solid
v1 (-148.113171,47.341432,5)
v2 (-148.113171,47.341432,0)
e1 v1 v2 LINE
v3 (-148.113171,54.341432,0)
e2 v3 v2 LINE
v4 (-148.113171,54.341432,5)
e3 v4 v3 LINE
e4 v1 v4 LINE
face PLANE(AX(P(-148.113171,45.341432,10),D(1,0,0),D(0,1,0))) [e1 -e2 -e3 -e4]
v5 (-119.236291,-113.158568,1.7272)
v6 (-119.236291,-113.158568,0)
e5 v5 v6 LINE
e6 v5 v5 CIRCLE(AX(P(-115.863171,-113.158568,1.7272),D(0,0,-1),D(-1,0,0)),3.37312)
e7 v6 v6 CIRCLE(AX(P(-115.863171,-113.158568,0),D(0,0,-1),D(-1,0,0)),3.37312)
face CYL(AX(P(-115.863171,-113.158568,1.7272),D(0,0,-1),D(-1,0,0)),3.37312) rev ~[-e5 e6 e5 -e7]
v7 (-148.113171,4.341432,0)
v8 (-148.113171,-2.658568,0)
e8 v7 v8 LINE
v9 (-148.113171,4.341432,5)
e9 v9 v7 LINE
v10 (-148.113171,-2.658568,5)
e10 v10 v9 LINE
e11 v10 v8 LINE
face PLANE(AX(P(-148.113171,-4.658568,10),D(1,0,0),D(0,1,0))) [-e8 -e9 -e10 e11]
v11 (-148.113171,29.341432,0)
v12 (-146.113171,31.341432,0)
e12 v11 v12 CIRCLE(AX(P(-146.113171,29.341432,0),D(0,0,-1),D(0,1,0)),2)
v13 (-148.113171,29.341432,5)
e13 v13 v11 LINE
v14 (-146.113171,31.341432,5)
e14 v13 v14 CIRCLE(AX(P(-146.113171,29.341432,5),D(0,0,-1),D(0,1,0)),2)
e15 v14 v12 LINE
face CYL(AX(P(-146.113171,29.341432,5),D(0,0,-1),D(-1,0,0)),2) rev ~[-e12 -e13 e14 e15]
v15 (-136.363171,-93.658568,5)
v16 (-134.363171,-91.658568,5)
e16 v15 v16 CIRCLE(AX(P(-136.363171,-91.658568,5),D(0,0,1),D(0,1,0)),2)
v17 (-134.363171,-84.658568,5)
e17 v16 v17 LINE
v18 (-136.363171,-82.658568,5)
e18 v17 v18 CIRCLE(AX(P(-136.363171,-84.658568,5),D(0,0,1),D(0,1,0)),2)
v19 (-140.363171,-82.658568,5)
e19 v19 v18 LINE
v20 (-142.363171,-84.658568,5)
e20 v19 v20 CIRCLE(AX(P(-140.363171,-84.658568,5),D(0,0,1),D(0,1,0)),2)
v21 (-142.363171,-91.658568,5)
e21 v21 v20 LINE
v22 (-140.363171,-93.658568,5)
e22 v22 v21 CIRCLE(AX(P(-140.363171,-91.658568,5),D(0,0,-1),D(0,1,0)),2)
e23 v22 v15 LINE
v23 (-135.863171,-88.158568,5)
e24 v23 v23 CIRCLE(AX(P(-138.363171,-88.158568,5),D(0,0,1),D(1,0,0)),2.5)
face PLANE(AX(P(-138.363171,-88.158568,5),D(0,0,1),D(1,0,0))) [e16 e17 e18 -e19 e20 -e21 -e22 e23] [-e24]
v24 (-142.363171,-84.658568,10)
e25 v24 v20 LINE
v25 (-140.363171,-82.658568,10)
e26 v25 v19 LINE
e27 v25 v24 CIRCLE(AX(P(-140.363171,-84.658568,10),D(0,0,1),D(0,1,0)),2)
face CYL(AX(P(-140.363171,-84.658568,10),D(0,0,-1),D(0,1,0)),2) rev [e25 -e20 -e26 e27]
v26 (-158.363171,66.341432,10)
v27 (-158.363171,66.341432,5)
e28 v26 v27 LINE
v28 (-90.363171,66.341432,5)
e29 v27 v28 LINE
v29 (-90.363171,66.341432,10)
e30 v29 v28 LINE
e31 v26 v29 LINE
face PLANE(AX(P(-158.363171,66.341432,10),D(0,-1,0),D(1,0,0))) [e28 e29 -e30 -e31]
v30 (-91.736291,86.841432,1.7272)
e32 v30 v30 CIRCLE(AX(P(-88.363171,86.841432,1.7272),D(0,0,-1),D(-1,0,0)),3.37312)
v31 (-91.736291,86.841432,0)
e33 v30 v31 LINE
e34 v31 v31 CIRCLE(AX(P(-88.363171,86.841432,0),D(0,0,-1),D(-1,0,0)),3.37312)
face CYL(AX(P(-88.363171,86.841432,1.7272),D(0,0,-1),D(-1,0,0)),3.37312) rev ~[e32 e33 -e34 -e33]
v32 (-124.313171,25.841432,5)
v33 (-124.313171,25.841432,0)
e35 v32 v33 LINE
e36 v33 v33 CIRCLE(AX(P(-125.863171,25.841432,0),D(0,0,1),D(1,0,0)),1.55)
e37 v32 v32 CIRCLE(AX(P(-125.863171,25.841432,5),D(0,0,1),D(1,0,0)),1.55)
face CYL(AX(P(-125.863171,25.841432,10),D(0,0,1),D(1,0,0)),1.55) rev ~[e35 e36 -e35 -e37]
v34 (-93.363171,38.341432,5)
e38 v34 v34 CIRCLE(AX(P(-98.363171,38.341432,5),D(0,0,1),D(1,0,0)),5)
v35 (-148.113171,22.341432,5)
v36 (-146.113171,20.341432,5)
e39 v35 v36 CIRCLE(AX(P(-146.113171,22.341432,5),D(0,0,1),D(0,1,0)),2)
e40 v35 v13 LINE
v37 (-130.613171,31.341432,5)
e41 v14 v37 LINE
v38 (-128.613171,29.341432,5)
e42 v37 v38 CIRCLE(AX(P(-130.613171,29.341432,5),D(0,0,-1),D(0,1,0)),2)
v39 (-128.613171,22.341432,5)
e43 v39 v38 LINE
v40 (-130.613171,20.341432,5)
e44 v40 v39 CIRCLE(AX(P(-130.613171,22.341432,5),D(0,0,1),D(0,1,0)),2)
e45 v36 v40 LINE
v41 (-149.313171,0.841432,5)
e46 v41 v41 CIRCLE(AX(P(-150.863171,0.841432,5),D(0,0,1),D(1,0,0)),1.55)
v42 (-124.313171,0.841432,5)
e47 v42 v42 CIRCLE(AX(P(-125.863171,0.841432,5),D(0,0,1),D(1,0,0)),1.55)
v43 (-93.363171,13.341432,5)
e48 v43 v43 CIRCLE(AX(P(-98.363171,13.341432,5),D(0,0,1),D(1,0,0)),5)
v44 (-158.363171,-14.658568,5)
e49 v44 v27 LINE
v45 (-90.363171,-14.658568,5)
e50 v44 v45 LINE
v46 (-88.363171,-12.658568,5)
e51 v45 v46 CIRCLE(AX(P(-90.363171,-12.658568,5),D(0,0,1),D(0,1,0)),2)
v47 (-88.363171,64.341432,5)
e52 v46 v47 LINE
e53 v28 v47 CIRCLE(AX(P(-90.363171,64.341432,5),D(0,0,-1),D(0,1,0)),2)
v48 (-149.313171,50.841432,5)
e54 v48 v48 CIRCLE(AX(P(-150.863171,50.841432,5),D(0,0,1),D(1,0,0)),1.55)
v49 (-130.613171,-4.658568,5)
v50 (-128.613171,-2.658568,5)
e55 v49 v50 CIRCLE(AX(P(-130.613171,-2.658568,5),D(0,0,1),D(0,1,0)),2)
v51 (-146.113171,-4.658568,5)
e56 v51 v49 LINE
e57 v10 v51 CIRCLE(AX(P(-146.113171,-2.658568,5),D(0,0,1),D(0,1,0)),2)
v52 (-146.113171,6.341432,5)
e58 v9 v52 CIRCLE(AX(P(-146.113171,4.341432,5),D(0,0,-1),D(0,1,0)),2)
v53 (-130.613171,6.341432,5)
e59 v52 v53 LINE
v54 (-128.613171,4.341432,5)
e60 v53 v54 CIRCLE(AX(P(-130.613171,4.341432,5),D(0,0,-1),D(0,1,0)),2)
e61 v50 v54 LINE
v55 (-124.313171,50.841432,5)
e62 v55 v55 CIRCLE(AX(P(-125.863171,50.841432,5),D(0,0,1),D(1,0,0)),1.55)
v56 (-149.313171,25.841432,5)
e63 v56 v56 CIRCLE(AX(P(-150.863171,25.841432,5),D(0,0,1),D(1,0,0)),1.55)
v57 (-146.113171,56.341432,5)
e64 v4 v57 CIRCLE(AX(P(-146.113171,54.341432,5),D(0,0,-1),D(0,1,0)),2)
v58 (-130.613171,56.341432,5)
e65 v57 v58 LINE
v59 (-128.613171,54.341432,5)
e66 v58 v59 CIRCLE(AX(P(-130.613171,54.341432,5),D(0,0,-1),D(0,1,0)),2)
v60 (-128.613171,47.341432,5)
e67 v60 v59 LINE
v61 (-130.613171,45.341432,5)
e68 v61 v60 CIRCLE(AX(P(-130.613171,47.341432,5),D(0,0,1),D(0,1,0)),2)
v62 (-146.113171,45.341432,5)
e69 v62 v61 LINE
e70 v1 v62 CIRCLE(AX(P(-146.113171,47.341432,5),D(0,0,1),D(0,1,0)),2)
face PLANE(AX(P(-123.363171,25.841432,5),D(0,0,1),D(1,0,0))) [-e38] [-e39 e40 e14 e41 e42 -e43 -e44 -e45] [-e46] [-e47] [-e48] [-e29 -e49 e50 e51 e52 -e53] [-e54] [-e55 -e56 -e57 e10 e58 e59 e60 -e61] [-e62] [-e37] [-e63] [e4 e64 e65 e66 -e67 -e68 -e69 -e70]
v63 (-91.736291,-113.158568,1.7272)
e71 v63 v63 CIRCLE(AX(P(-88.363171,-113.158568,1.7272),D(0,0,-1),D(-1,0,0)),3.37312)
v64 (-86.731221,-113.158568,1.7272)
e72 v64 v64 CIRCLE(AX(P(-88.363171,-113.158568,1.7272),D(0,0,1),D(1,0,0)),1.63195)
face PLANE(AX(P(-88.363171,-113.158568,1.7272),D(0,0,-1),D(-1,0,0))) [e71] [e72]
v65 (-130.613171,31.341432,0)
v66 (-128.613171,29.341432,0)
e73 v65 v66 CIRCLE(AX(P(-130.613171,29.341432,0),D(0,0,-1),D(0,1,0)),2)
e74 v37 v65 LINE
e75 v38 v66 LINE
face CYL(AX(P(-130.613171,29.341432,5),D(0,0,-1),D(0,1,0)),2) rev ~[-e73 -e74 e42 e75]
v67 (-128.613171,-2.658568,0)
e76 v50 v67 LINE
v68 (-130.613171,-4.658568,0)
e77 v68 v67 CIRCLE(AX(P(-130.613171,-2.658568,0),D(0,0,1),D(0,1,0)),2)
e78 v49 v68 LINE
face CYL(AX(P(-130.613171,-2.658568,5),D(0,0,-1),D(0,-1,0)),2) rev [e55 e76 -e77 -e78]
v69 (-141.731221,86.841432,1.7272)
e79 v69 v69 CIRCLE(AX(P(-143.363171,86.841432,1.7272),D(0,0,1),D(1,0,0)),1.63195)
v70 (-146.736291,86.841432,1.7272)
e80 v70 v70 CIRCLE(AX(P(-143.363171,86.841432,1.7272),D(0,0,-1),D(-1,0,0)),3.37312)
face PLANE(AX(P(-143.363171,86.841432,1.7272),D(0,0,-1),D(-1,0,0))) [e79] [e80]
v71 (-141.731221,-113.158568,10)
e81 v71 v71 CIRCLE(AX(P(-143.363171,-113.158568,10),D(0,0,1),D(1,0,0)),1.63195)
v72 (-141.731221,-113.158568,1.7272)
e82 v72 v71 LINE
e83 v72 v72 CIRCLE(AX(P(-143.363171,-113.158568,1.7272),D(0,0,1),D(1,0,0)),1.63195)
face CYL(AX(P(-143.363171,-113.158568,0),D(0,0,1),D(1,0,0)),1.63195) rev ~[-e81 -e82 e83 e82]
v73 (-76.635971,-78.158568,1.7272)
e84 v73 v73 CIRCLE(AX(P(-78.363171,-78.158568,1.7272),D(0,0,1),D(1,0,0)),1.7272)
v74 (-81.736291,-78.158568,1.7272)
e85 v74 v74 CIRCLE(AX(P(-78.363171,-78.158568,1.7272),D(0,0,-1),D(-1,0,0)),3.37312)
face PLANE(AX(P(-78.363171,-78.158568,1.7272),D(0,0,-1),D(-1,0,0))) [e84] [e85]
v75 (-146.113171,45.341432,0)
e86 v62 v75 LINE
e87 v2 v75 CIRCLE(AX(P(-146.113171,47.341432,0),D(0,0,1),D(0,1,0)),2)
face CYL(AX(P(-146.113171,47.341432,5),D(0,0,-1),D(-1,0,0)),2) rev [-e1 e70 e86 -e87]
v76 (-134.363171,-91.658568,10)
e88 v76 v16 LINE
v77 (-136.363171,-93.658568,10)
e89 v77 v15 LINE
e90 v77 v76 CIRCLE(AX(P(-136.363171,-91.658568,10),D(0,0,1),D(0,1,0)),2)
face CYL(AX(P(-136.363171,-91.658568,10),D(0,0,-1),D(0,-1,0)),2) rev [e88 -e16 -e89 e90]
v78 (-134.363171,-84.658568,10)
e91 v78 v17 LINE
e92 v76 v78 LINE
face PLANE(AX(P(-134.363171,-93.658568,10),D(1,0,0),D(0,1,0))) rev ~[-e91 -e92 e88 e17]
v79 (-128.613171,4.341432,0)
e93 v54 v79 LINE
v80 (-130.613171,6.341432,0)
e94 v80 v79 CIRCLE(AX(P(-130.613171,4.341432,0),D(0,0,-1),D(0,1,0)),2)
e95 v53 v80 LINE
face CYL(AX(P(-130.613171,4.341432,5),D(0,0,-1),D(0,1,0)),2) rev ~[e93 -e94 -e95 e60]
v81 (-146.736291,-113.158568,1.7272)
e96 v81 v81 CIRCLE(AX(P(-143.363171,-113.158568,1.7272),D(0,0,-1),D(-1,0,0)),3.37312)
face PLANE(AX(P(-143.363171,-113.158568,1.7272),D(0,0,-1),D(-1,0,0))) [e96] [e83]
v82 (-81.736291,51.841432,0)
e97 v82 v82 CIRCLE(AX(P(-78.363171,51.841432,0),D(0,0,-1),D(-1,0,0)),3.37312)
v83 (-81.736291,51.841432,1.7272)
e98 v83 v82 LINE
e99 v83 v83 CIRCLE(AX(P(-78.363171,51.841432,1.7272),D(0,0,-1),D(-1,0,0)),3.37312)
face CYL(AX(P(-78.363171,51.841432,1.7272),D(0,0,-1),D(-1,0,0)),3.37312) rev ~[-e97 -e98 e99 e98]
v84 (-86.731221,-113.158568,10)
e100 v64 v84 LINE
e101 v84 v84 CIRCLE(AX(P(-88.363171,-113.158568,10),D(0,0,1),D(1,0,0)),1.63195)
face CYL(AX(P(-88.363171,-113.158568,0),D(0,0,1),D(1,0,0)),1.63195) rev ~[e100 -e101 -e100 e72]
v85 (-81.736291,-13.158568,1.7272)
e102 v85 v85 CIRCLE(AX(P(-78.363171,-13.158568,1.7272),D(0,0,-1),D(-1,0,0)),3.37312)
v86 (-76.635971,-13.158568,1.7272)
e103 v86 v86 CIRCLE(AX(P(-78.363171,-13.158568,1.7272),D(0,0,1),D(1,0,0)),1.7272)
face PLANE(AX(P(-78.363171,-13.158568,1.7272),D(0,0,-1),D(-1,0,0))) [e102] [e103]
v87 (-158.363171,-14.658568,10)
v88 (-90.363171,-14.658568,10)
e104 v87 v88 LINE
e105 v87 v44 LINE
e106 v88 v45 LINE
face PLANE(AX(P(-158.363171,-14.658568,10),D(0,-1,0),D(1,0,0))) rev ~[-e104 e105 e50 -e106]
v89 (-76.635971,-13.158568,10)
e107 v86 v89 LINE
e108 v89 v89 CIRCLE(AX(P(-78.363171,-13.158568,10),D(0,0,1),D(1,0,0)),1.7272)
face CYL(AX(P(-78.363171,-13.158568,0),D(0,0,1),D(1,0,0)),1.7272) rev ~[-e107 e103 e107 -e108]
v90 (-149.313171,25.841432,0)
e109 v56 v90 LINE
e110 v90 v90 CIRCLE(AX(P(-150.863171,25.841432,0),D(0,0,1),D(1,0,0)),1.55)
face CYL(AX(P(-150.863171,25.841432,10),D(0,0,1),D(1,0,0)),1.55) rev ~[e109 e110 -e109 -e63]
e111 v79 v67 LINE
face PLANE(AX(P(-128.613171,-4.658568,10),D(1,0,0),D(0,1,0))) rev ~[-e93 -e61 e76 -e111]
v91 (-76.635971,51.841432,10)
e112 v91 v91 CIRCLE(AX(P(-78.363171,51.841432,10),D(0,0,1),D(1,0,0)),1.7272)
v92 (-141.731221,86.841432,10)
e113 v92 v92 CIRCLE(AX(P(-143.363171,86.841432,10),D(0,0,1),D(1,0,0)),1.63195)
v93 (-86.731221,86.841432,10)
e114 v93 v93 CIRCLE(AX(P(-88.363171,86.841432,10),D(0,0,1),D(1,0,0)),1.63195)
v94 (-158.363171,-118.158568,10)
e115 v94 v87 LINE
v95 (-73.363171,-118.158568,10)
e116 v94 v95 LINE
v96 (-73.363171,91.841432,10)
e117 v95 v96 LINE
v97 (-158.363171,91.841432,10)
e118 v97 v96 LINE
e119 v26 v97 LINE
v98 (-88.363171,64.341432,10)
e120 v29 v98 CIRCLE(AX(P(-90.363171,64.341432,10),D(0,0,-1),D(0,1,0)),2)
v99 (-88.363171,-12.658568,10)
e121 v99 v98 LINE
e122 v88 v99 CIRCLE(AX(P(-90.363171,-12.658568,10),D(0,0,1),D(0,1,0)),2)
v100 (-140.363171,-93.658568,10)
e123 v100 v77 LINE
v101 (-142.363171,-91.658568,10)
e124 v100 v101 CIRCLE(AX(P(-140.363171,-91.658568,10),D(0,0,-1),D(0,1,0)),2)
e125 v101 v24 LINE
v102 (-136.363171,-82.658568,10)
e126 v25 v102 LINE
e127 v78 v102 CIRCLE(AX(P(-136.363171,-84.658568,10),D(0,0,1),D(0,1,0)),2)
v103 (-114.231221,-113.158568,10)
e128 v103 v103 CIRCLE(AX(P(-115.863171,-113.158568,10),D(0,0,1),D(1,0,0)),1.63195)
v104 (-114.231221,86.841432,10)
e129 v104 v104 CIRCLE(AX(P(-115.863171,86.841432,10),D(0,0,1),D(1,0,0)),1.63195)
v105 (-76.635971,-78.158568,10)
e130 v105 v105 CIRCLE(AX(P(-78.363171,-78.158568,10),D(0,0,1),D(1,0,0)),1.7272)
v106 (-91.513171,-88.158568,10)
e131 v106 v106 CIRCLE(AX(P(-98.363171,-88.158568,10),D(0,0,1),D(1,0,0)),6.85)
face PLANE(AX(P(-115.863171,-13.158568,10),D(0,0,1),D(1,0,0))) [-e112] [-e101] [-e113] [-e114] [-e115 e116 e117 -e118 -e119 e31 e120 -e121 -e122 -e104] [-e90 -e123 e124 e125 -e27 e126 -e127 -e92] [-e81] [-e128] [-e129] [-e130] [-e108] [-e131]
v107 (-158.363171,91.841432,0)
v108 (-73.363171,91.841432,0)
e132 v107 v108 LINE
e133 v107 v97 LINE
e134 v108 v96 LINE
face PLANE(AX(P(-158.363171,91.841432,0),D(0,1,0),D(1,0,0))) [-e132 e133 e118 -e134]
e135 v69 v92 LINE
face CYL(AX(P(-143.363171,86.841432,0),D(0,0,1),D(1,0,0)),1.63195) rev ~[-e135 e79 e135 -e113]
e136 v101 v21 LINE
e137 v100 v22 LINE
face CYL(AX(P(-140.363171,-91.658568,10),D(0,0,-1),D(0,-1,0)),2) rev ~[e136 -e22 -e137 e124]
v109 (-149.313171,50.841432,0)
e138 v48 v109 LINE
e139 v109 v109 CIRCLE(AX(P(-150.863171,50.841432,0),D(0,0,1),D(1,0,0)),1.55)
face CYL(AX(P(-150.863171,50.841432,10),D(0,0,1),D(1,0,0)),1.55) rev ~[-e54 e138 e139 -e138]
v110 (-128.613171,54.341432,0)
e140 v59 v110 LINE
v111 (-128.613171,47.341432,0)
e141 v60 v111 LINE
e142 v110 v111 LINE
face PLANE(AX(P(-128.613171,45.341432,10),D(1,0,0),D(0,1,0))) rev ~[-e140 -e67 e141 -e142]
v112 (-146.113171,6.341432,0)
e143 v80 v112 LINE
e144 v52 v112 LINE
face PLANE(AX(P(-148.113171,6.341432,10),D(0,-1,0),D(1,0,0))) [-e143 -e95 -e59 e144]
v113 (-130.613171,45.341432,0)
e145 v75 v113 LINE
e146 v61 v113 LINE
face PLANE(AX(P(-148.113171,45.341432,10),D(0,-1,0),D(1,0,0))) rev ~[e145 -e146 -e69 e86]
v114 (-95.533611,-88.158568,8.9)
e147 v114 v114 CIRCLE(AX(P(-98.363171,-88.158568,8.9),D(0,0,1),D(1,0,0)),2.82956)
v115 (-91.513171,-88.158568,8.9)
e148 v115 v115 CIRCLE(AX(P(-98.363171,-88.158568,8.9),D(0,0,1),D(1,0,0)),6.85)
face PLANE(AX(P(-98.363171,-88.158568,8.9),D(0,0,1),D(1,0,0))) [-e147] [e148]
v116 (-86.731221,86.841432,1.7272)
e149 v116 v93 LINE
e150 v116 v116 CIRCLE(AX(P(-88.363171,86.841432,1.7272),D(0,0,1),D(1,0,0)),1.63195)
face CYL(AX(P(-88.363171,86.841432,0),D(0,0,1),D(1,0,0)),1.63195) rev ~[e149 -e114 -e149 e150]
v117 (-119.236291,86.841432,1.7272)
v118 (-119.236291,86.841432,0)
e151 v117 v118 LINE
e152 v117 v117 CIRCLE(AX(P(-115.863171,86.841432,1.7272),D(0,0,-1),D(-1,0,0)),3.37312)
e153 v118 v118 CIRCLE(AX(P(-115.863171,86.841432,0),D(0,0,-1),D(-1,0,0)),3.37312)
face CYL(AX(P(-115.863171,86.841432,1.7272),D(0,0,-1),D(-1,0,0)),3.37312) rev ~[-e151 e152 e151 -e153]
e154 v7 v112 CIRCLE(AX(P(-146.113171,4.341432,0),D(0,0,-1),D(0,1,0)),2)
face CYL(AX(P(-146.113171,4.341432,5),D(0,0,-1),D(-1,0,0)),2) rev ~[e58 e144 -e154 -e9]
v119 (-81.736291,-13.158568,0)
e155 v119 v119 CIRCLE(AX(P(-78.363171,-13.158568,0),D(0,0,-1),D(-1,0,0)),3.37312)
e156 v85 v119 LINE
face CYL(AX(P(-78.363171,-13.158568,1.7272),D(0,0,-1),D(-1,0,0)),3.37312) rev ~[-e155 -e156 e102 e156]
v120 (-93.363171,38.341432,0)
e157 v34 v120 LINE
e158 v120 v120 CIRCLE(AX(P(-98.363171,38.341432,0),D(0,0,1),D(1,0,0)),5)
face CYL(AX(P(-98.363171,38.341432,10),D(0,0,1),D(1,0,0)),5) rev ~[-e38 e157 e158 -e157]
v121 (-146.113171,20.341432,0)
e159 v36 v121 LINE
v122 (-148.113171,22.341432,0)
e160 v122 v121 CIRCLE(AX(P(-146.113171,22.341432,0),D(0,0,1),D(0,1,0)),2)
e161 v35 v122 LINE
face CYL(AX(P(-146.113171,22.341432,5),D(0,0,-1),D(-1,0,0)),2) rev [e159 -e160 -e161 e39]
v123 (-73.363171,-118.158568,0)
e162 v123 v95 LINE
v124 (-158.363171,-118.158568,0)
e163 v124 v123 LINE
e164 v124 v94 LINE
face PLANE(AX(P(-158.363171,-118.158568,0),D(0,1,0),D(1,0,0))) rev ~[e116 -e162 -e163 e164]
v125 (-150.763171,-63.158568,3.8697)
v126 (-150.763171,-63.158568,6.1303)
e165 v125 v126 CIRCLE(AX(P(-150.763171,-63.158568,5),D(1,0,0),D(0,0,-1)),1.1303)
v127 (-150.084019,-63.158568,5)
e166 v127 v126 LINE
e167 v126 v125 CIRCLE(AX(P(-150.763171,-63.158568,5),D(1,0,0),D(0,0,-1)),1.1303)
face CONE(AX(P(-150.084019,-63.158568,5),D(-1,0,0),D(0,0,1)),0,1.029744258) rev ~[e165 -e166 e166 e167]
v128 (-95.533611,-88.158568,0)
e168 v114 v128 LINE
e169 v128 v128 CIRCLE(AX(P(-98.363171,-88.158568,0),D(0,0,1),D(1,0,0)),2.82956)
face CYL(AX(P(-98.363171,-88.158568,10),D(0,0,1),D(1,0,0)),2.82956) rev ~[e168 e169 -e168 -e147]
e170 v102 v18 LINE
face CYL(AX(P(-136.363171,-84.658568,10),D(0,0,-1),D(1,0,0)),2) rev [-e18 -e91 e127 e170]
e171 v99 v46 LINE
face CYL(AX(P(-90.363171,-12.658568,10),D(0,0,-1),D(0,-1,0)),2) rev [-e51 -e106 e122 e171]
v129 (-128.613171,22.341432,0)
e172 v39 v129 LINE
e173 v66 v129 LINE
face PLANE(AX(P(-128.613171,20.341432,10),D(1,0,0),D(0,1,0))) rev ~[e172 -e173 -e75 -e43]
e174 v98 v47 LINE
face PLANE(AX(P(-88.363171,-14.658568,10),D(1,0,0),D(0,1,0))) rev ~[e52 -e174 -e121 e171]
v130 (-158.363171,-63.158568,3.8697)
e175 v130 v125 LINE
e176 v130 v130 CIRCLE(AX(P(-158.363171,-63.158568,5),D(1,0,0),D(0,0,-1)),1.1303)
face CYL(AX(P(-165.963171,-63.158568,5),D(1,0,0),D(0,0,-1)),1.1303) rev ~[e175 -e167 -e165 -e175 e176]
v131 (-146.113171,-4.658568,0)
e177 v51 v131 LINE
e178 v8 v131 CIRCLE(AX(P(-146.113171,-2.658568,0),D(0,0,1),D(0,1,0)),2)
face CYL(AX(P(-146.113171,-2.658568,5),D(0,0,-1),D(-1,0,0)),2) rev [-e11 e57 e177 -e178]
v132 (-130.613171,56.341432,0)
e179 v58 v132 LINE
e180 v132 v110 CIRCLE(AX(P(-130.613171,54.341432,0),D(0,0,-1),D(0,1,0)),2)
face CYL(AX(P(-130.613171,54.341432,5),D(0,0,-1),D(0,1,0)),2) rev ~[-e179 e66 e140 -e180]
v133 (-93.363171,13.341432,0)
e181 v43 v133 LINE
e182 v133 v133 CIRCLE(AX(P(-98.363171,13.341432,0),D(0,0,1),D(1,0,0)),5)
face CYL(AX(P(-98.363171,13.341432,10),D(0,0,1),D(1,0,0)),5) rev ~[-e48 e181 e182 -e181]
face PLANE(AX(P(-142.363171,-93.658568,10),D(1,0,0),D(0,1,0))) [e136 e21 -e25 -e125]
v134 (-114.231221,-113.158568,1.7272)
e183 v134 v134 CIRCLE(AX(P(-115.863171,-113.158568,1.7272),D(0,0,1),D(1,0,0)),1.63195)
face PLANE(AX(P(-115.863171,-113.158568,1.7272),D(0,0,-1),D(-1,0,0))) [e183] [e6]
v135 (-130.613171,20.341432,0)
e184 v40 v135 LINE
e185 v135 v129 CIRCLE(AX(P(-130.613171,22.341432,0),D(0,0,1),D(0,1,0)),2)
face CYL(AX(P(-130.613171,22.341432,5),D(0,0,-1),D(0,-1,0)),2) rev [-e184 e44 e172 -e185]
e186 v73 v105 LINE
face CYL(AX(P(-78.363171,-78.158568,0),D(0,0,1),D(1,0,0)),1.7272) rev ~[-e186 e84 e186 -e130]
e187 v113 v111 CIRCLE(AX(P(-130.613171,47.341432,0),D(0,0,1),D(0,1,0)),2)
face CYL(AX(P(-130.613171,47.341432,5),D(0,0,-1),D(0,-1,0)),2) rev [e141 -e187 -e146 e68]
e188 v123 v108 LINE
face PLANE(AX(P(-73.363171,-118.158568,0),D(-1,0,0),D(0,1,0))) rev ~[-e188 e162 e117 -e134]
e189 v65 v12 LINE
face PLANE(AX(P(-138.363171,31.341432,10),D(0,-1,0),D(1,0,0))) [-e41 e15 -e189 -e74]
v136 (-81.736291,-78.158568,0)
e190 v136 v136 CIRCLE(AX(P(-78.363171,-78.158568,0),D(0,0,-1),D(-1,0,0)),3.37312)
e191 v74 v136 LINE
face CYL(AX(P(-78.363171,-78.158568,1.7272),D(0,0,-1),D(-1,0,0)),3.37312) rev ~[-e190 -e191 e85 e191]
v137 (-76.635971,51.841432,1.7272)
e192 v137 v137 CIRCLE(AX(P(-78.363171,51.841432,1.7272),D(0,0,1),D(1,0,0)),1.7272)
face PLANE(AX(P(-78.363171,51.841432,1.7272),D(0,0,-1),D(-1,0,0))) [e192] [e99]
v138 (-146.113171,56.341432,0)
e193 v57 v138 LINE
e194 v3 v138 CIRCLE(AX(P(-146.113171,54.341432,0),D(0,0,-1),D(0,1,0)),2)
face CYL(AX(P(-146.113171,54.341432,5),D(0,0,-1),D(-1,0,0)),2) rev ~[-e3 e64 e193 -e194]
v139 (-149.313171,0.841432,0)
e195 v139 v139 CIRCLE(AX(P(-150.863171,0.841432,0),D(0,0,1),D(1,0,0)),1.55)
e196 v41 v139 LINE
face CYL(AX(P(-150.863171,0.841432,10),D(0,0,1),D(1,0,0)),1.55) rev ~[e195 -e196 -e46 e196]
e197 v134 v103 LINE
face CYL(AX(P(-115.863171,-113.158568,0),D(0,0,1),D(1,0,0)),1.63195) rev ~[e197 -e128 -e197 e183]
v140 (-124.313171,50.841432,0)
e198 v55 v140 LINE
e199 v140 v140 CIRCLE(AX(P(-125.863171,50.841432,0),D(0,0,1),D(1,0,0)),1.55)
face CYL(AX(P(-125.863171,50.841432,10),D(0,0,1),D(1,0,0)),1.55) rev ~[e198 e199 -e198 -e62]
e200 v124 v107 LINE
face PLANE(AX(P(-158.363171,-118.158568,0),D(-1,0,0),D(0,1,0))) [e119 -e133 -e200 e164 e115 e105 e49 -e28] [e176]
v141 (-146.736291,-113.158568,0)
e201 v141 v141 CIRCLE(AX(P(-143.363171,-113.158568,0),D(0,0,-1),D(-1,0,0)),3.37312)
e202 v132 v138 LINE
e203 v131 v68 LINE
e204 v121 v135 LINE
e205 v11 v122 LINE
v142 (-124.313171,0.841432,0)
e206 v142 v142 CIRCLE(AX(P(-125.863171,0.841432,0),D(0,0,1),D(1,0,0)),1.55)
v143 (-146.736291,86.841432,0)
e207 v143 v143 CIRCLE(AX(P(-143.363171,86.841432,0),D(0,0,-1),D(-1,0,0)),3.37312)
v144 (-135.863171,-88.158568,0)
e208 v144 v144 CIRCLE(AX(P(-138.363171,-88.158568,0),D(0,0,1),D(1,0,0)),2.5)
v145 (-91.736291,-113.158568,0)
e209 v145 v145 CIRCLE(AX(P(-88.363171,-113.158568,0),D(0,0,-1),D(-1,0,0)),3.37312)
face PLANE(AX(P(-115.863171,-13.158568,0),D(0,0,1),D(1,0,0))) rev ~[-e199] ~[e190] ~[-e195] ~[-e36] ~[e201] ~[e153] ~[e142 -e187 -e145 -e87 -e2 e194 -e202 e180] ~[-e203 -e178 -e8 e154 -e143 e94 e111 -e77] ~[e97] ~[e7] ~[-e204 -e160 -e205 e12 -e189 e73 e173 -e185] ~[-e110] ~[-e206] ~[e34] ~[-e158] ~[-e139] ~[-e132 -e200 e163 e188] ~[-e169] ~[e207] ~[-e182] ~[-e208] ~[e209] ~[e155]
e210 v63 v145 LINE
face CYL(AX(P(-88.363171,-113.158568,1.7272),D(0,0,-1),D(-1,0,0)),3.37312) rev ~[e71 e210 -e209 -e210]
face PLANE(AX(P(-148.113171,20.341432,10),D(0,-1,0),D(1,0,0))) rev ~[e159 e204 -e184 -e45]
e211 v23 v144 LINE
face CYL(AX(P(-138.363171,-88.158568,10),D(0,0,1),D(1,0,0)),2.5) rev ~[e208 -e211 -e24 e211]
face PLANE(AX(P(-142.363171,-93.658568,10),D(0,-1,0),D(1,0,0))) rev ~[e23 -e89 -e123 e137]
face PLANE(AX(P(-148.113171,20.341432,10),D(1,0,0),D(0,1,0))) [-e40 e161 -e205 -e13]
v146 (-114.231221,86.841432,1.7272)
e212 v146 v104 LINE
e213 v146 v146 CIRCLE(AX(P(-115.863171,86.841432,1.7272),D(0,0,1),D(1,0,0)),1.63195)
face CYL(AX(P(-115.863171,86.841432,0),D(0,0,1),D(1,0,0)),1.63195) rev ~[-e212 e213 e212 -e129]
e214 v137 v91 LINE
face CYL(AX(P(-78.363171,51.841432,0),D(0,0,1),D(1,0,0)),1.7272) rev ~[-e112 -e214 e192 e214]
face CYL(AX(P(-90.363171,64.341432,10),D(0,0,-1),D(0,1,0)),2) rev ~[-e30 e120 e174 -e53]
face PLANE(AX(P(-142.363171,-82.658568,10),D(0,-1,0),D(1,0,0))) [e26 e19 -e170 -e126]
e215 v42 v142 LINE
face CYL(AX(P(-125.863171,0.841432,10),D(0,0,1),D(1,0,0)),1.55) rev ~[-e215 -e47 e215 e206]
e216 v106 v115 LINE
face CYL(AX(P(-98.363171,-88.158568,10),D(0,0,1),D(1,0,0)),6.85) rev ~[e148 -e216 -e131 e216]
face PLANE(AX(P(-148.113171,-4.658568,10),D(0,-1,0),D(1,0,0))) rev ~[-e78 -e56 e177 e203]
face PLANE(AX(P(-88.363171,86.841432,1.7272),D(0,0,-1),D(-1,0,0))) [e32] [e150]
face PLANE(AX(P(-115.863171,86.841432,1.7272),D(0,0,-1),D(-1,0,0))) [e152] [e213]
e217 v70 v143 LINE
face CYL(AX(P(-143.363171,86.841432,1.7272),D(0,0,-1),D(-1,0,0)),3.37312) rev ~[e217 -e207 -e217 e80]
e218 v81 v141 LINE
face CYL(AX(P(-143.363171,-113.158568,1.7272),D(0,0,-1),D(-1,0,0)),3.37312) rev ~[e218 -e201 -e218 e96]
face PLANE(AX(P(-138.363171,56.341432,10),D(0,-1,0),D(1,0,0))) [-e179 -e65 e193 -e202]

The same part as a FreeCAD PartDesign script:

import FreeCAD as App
import Part
import Sketcher
from FreeCAD import Vector
Q = App.Units.Quantity


def edges_at(feature, points):
    """Names of the edges that pass closest to the given points."""
    edges = feature.Shape.Edges
    near = lambda p: min(range(len(edges)), key=lambda i: edges[i].distToShape(Part.Vertex(*p))[0])
    return sorted({f"Edge{near(p) + 1}" for p in points})


def add_polygon(sketch, points):
    """Adds a closed chain of lines whose ends are joined by coincident constraints."""
    first, n = sketch.GeometryCount, len(points)
    for a, b in zip(points, points[1:] + points[:1]):
        sketch.addGeometry(Part.LineSegment(App.Vector(*a, 0), App.Vector(*b, 0)), False)
    for i in range(n):
        sketch.addConstraint(Sketcher.Constraint("Coincident", first + i, 2, first + (i + 1) % n, 1))

doc = App.newDocument("Part")
body = doc.addObject("PartDesign::Body", "Body")

# Sketch on XY plane
sketch1 = doc.addObject("Sketcher::SketchObject", "Sketch")
body.addObject(sketch1)
sketch1.AttachmentSupport = (doc.XY_Plane, [""])
sketch1.MapMode = "FlatFace"
add_polygon(sketch1, [(-158, 92), (-158, -118), (-73, -118), (-73, 92)])  # lines 0-3
sketch1.addConstraint(Sketcher.Constraint("Vertical", 0))
sketch1.addConstraint(Sketcher.Constraint("Horizontal", 1))
sketch1.addConstraint(Sketcher.Constraint("Vertical", 2))
sketch1.addConstraint(Sketcher.Constraint("Horizontal", 3))
sketch1.addConstraint(Sketcher.Constraint("DistanceX", 1, 1, 1, 2, Q("85 mm")))
sketch1.addConstraint(Sketcher.Constraint("DistanceY", 0, 2, 0, 1, Q("210 mm")))
sketch1.addConstraint(Sketcher.Constraint("DistanceX", 0, 2, -1, 1, Q("158.363171 mm")))
sketch1.addConstraint(Sketcher.Constraint("DistanceY", 0, 2, -1, 1, Q("118.158568 mm")))
pad1 = doc.addObject("PartDesign::Pad", "Pad")
body.addObject(pad1)
pad1.Profile = sketch1
pad1.Length = 10

# Sketch on XY plane
sketch2 = doc.addObject("Sketcher::SketchObject", "Sketch001")
body.addObject(sketch2)
sketch2.AttachmentSupport = (doc.XY_Plane, [""])
sketch2.MapMode = "FlatFace"
sketch2.AttachmentOffset = App.Placement(Vector(0, 0, 10), App.Rotation())
sketch2.addGeometry(Part.Circle(Vector(-98, 38, 0), Vector(0, 0, 1), 5), False)
sketch2.addConstraint(Sketcher.Constraint("Diameter", 0, Q("10 mm")))
sketch2.addConstraint(Sketcher.Constraint("DistanceX", 0, 3, -1, 1, Q("98.363171 mm")))
sketch2.addConstraint(Sketcher.Constraint("DistanceY", -1, 1, 0, 3, Q("38.341432 mm")))
pocket1 = doc.addObject("PartDesign::Pocket", "Pocket")
body.addObject(pocket1)
pocket1.Profile = sketch2
pocket1.Type = "UpToFirst"

# Sketch on XY plane
sketch3 = doc.addObject("Sketcher::SketchObject", "Sketch002")
body.addObject(sketch3)
sketch3.AttachmentSupport = (doc.XY_Plane, [""])
sketch3.MapMode = "FlatFace"
sketch3.AttachmentOffset = App.Placement(Vector(0, 0, 10), App.Rotation())
sketch3.addGeometry(Part.Circle(Vector(-98, 13, 0), Vector(0, 0, 1), 5), False)
sketch3.addConstraint(Sketcher.Constraint("Diameter", 0, Q("10 mm")))
sketch3.addConstraint(Sketcher.Constraint("DistanceX", 0, 3, -1, 1, Q("98.363171 mm")))
sketch3.addConstraint(Sketcher.Constraint("DistanceY", -1, 1, 0, 3, Q("13.341432 mm")))
pocket2 = doc.addObject("PartDesign::Pocket", "Pocket001")
body.addObject(pocket2)
pocket2.Profile = sketch3
pocket2.Type = "UpToFirst"

# Sketch on XY plane
sketch4 = doc.addObject("Sketcher::SketchObject", "Sketch003")
body.addObject(sketch4)
sketch4.AttachmentSupport = (doc.XY_Plane, [""])
sketch4.MapMode = "FlatFace"
sketch4.AttachmentOffset = App.Placement(Vector(0, 0, 10), App.Rotation())
sketch4.addGeometry(Part.Circle(Vector(-138.4, -88.2, 0), Vector(0, 0, 1), 2.5), False)
sketch4.addConstraint(Sketcher.Constraint("Diameter", 0, Q("5 mm")))
sketch4.addConstraint(Sketcher.Constraint("DistanceX", 0, 3, -1, 1, Q("138.363171 mm")))
sketch4.addConstraint(Sketcher.Constraint("DistanceY", 0, 3, -1, 1, Q("88.158568 mm")))
pocket3 = doc.addObject("PartDesign::Pocket", "Pocket002")
body.addObject(pocket3)
pocket3.Profile = sketch4
pocket3.Type = "UpToFirst"

# Sketch on XY plane
sketch5 = doc.addObject("Sketcher::SketchObject", "Sketch004")
body.addObject(sketch5)
sketch5.AttachmentSupport = (doc.XY_Plane, [""])
sketch5.MapMode = "FlatFace"
sketch5.AttachmentOffset = App.Placement(Vector(0, 0, 10), App.Rotation())
sketch5.addGeometry(Part.Circle(Vector(-98.4, -88.2, 0), Vector(0, 0, 1), 2.8), False)
sketch5.addConstraint(Sketcher.Constraint("Diameter", 0, Q("5.65912 mm")))
sketch5.addConstraint(Sketcher.Constraint("DistanceX", 0, 3, -1, 1, Q("98.363171 mm")))
sketch5.addConstraint(Sketcher.Constraint("DistanceY", 0, 3, -1, 1, Q("88.158568 mm")))
pocket4 = doc.addObject("PartDesign::Pocket", "Pocket003")
body.addObject(pocket4)
pocket4.Profile = sketch5
pocket4.Type = "UpToFirst"

# Sketch on XY plane
sketch6 = doc.addObject("Sketcher::SketchObject", "Sketch005")
body.addObject(sketch6)
sketch6.AttachmentSupport = (doc.XY_Plane, [""])
sketch6.MapMode = "FlatFace"
sketch6.AttachmentOffset = App.Placement(Vector(0, 0, 10), App.Rotation())
sketch6.addGeometry(Part.Circle(Vector(-98.4, -88.2, 0), Vector(0, 0, 1), 6.8), False)
sketch6.addGeometry(Part.Circle(Vector(-98.4, -88.2, 0), Vector(0, 0, 1), 2.8), False)
sketch6.addConstraint(Sketcher.Constraint("Coincident", 1, 3, 0, 3))
sketch6.addConstraint(Sketcher.Constraint("Diameter", 0, Q("13.7 mm")))
sketch6.addConstraint(Sketcher.Constraint("Diameter", 1, Q("5.65912 mm")))
sketch6.addConstraint(Sketcher.Constraint("DistanceX", 0, 3, -1, 1, Q("98.363171 mm")))
sketch6.addConstraint(Sketcher.Constraint("DistanceY", 0, 3, -1, 1, Q("88.158568 mm")))
pocket5 = doc.addObject("PartDesign::Pocket", "Pocket004")
body.addObject(pocket5)
pocket5.Profile = sketch6
pocket5.Length = 1.1

# Sketch on XY plane
sketch7 = doc.addObject("Sketcher::SketchObject", "Sketch006")
body.addObject(sketch7)
sketch7.AttachmentSupport = (doc.XY_Plane, [""])
sketch7.MapMode = "FlatFace"
sketch7.addGeometry(Part.Circle(Vector(-78.4, 51.8, 0), Vector(0, 0, 1), 1.7), False)
sketch7.addGeometry(Part.Circle(Vector(-78.4, -13.2, 0), Vector(0, 0, 1), 1.7), False)
sketch7.addGeometry(Part.Circle(Vector(-78.4, -78.2, 0), Vector(0, 0, 1), 1.7), False)
sketch7.addConstraint(Sketcher.Constraint("Equal", 0, 1))
sketch7.addConstraint(Sketcher.Constraint("Equal", 1, 2))
sketch7.addConstraint(Sketcher.Constraint("Vertical", 0, 3, 1, 3))
sketch7.addConstraint(Sketcher.Constraint("Vertical", 1, 3, 2, 3))
sketch7.addConstraint(Sketcher.Constraint("DistanceY", 1, 3, 0, 3, Q("65 mm")))
sketch7.addConstraint(Sketcher.Constraint("DistanceY", 2, 3, 1, 3, Q("65 mm")))
sketch7.addConstraint(Sketcher.Constraint("Diameter", 0, Q("3.4544 mm")))
sketch7.addConstraint(Sketcher.Constraint("DistanceX", 0, 3, -1, 1, Q("78.363171 mm")))
sketch7.addConstraint(Sketcher.Constraint("DistanceY", -1, 1, 0, 3, Q("51.841432 mm")))
doc.recompute()
hole = doc.addObject("PartDesign::Hole", "Hole")
body.addObject(hole)
hole.Profile = sketch7
hole.ThreadType = "None"
hole.Diameter = 3.4544
hole.DepthType = "ThroughAll"
hole.HoleCutType = "Counterbore"
hole.HoleCutDiameter = 6.74624
hole.HoleCutDepth = 1.7272
hole.Reversed = True

# Sketch on XY plane
sketch8 = doc.addObject("Sketcher::SketchObject", "Sketch007")
body.addObject(sketch8)
sketch8.AttachmentSupport = (doc.XY_Plane, [""])
sketch8.MapMode = "FlatFace"
sketch8.AttachmentOffset = App.Placement(Vector(0, 0, 10), App.Rotation())
add_polygon(sketch8, [(-148, 56), (-148, 45), (-138, 45), (-138, 56)])  # lines 0-3
sketch8.addConstraint(Sketcher.Constraint("Vertical", 0))
sketch8.addConstraint(Sketcher.Constraint("Horizontal", 1))
sketch8.addConstraint(Sketcher.Constraint("Vertical", 2))
sketch8.addConstraint(Sketcher.Constraint("Horizontal", 3))
sketch8.addConstraint(Sketcher.Constraint("DistanceY", 0, 2, 0, 1, Q("11 mm")))
sketch8.addConstraint(Sketcher.Constraint("DistanceX", 1, 1, 1, 2, Q("9.75 mm")))
sketch8.addConstraint(Sketcher.Constraint("DistanceX", 0, 2, -1, 1, Q("148.113171 mm")))
sketch8.addConstraint(Sketcher.Constraint("DistanceY", -1, 1, 0, 2, Q("45.341432 mm")))
pocket6 = doc.addObject("PartDesign::Pocket", "Pocket005")
body.addObject(pocket6)
pocket6.Profile = sketch8
pocket6.Type = "UpToFirst"

# Sketch on XY plane
sketch9 = doc.addObject("Sketcher::SketchObject", "Sketch008")
body.addObject(sketch9)
sketch9.AttachmentSupport = (doc.XY_Plane, [""])
sketch9.MapMode = "FlatFace"
sketch9.AttachmentOffset = App.Placement(Vector(0, 0, 10), App.Rotation())
add_polygon(sketch9, [(-138, 56), (-138, 45), (-129, 45), (-129, 56)])  # lines 0-3
sketch9.addConstraint(Sketcher.Constraint("Vertical", 0))
sketch9.addConstraint(Sketcher.Constraint("Horizontal", 1))
sketch9.addConstraint(Sketcher.Constraint("Vertical", 2))
sketch9.addConstraint(Sketcher.Constraint("Horizontal", 3))
sketch9.addConstraint(Sketcher.Constraint("DistanceY", 0, 2, 0, 1, Q("11 mm")))
sketch9.addConstraint(Sketcher.Constraint("DistanceX", 1, 1, 1, 2, Q("9.75 mm")))
sketch9.addConstraint(Sketcher.Constraint("DistanceX", 0, 2, -1, 1, Q("138.363171 mm")))
sketch9.addConstraint(Sketcher.Constraint("DistanceY", -1, 1, 0, 2, Q("45.341432 mm")))
pocket7 = doc.addObject("PartDesign::Pocket", "Pocket006")
body.addObject(pocket7)
pocket7.Profile = sketch9
pocket7.Type = "UpToFirst"

# Sketch on XY plane
sketch10 = doc.addObject("Sketcher::SketchObject", "Sketch009")
body.addObject(sketch10)
sketch10.AttachmentSupport = (doc.XY_Plane, [""])
sketch10.MapMode = "FlatFace"
sketch10.AttachmentOffset = App.Placement(Vector(0, 0, 10), App.Rotation())
add_polygon(sketch10, [(-148, 31), (-148, 20), (-138, 20), (-138, 31)])  # lines 0-3
sketch10.addConstraint(Sketcher.Constraint("Vertical", 0))
sketch10.addConstraint(Sketcher.Constraint("Horizontal", 1))
sketch10.addConstraint(Sketcher.Constraint("Vertical", 2))
sketch10.addConstraint(Sketcher.Constraint("Horizontal", 3))
sketch10.addConstraint(Sketcher.Constraint("DistanceY", 0, 2, 0, 1, Q("11 mm")))
sketch10.addConstraint(Sketcher.Constraint("DistanceX", 1, 1, 1, 2, Q("9.75 mm")))
sketch10.addConstraint(Sketcher.Constraint("DistanceX", 0, 2, -1, 1, Q("148.113171 mm")))
sketch10.addConstraint(Sketcher.Constraint("DistanceY", -1, 1, 0, 2, Q("20.341432 mm")))
pocket8 = doc.addObject("PartDesign::Pocket", "Pocket007")
body.addObject(pocket8)
pocket8.Profile = sketch10
pocket8.Type = "UpToFirst"

# Sketch on XY plane
sketch11 = doc.addObject("Sketcher::SketchObject", "Sketch010")
body.addObject(sketch11)
sketch11.AttachmentSupport = (doc.XY_Plane, [""])
sketch11.MapMode = "FlatFace"
sketch11.AttachmentOffset = App.Placement(Vector(0, 0, 10), App.Rotation())
add_polygon(sketch11, [(-138, 31), (-138, 20), (-129, 20), (-129, 31)])  # lines 0-3
sketch11.addConstraint(Sketcher.Constraint("Vertical", 0))
sketch11.addConstraint(Sketcher.Constraint("Horizontal", 1))
sketch11.addConstraint(Sketcher.Constraint("Vertical", 2))
sketch11.addConstraint(Sketcher.Constraint("Horizontal", 3))
sketch11.addConstraint(Sketcher.Constraint("DistanceY", 0, 2, 0, 1, Q("11 mm")))
sketch11.addConstraint(Sketcher.Constraint("DistanceX", 1, 1, 1, 2, Q("9.75 mm")))
sketch11.addConstraint(Sketcher.Constraint("DistanceX", 0, 2, -1, 1, Q("138.363171 mm")))
sketch11.addConstraint(Sketcher.Constraint("DistanceY", -1, 1, 0, 2, Q("20.341432 mm")))
pocket9 = doc.addObject("PartDesign::Pocket", "Pocket008")
body.addObject(pocket9)
pocket9.Profile = sketch11
pocket9.Type = "UpToFirst"

# Sketch on XY plane
sketch12 = doc.addObject("Sketcher::SketchObject", "Sketch011")
body.addObject(sketch12)
sketch12.AttachmentSupport = (doc.XY_Plane, [""])
sketch12.MapMode = "FlatFace"
sketch12.AttachmentOffset = App.Placement(Vector(0, 0, 10), App.Rotation())
add_polygon(sketch12, [(-138, 6), (-138, -5), (-129, -5), (-129, 6)])  # lines 0-3
sketch12.addConstraint(Sketcher.Constraint("Vertical", 0))
sketch12.addConstraint(Sketcher.Constraint("Horizontal", 1))
sketch12.addConstraint(Sketcher.Constraint("Vertical", 2))
sketch12.addConstraint(Sketcher.Constraint("Horizontal", 3))
sketch12.addConstraint(Sketcher.Constraint("DistanceY", 0, 2, 0, 1, Q("11 mm")))
sketch12.addConstraint(Sketcher.Constraint("DistanceX", 1, 1, 1, 2, Q("9.75 mm")))
sketch12.addConstraint(Sketcher.Constraint("DistanceX", 0, 2, -1, 1, Q("138.363171 mm")))
sketch12.addConstraint(Sketcher.Constraint("DistanceY", 0, 2, -1, 1, Q("4.658568 mm")))
pocket10 = doc.addObject("PartDesign::Pocket", "Pocket009")
body.addObject(pocket10)
pocket10.Profile = sketch12
pocket10.Type = "UpToFirst"

# Sketch on XY plane
sketch13 = doc.addObject("Sketcher::SketchObject", "Sketch012")
body.addObject(sketch13)
sketch13.AttachmentSupport = (doc.XY_Plane, [""])
sketch13.MapMode = "FlatFace"
sketch13.AttachmentOffset = App.Placement(Vector(0, 0, 10), App.Rotation())
add_polygon(sketch13, [(-148, 6), (-148, -5), (-138, -5), (-138, 6)])  # lines 0-3
sketch13.addConstraint(Sketcher.Constraint("Vertical", 0))
sketch13.addConstraint(Sketcher.Constraint("Horizontal", 1))
sketch13.addConstraint(Sketcher.Constraint("Vertical", 2))
sketch13.addConstraint(Sketcher.Constraint("Horizontal", 3))
sketch13.addConstraint(Sketcher.Constraint("DistanceY", 0, 2, 0, 1, Q("11 mm")))
sketch13.addConstraint(Sketcher.Constraint("DistanceX", 1, 1, 1, 2, Q("9.75 mm")))
sketch13.addConstraint(Sketcher.Constraint("DistanceX", 0, 2, -1, 1, Q("148.113171 mm")))
sketch13.addConstraint(Sketcher.Constraint("DistanceY", 0, 2, -1, 1, Q("4.658568 mm")))
pocket11 = doc.addObject("PartDesign::Pocket", "Pocket010")
body.addObject(pocket11)
pocket11.Profile = sketch13
pocket11.Type = "UpToFirst"

# Sketch on XY plane
sketch14 = doc.addObject("Sketcher::SketchObject", "Sketch013")
body.addObject(sketch14)
sketch14.AttachmentSupport = (doc.XY_Plane, [""])
sketch14.MapMode = "FlatFace"
sketch14.AttachmentOffset = App.Placement(Vector(0, 0, 10), App.Rotation())
sketch14.addGeometry(Part.Circle(Vector(-125.9, 50.8, 0), Vector(0, 0, 1), 1.6), False)
sketch14.addConstraint(Sketcher.Constraint("Diameter", 0, Q("3.1 mm")))
sketch14.addConstraint(Sketcher.Constraint("DistanceX", 0, 3, -1, 1, Q("125.863171 mm")))
sketch14.addConstraint(Sketcher.Constraint("DistanceY", -1, 1, 0, 3, Q("50.841432 mm")))
pocket12 = doc.addObject("PartDesign::Pocket", "Pocket011")
body.addObject(pocket12)
pocket12.Profile = sketch14
pocket12.Type = "UpToFirst"

# Sketch on XY plane
sketch15 = doc.addObject("Sketcher::SketchObject", "Sketch014")
body.addObject(sketch15)
sketch15.AttachmentSupport = (doc.XY_Plane, [""])
sketch15.MapMode = "FlatFace"
sketch15.AttachmentOffset = App.Placement(Vector(0, 0, 10), App.Rotation())
sketch15.addGeometry(Part.Circle(Vector(-150.9, 50.8, 0), Vector(0, 0, 1), 1.6), False)
sketch15.addConstraint(Sketcher.Constraint("Diameter", 0, Q("3.1 mm")))
sketch15.addConstraint(Sketcher.Constraint("DistanceX", 0, 3, -1, 1, Q("150.863171 mm")))
sketch15.addConstraint(Sketcher.Constraint("DistanceY", -1, 1, 0, 3, Q("50.841432 mm")))
pocket13 = doc.addObject("PartDesign::Pocket", "Pocket012")
body.addObject(pocket13)
pocket13.Profile = sketch15
pocket13.Type = "UpToFirst"

# Sketch on XY plane
sketch16 = doc.addObject("Sketcher::SketchObject", "Sketch015")
body.addObject(sketch16)
sketch16.AttachmentSupport = (doc.XY_Plane, [""])
sketch16.MapMode = "FlatFace"
sketch16.AttachmentOffset = App.Placement(Vector(0, 0, 10), App.Rotation())
sketch16.addGeometry(Part.Circle(Vector(-150.9, 25.8, 0), Vector(0, 0, 1), 1.6), False)
sketch16.addConstraint(Sketcher.Constraint("Diameter", 0, Q("3.1 mm")))
sketch16.addConstraint(Sketcher.Constraint("DistanceX", 0, 3, -1, 1, Q("150.863171 mm")))
sketch16.addConstraint(Sketcher.Constraint("DistanceY", -1, 1, 0, 3, Q("25.841432 mm")))
pocket14 = doc.addObject("PartDesign::Pocket", "Pocket013")
body.addObject(pocket14)
pocket14.Profile = sketch16
pocket14.Type = "UpToFirst"

# Sketch on XY plane
sketch17 = doc.addObject("Sketcher::SketchObject", "Sketch016")
body.addObject(sketch17)
sketch17.AttachmentSupport = (doc.XY_Plane, [""])
sketch17.MapMode = "FlatFace"
sketch17.AttachmentOffset = App.Placement(Vector(0, 0, 10), App.Rotation())
sketch17.addGeometry(Part.Circle(Vector(-125.9, 25.8, 0), Vector(0, 0, 1), 1.6), False)
sketch17.addConstraint(Sketcher.Constraint("Diameter", 0, Q("3.1 mm")))
sketch17.addConstraint(Sketcher.Constraint("DistanceX", 0, 3, -1, 1, Q("125.863171 mm")))
sketch17.addConstraint(Sketcher.Constraint("DistanceY", -1, 1, 0, 3, Q("25.841432 mm")))
pocket15 = doc.addObject("PartDesign::Pocket", "Pocket014")
body.addObject(pocket15)
pocket15.Profile = sketch17
pocket15.Type = "UpToFirst"

# Sketch on XY plane
sketch18 = doc.addObject("Sketcher::SketchObject", "Sketch017")
body.addObject(sketch18)
sketch18.AttachmentSupport = (doc.XY_Plane, [""])
sketch18.MapMode = "FlatFace"
sketch18.AttachmentOffset = App.Placement(Vector(0, 0, 10), App.Rotation())
sketch18.addGeometry(Part.Circle(Vector(-150.9, 0.8, 0), Vector(0, 0, 1), 1.6), False)
sketch18.addConstraint(Sketcher.Constraint("Diameter", 0, Q("3.1 mm")))
sketch18.addConstraint(Sketcher.Constraint("DistanceX", 0, 3, -1, 1, Q("150.863171 mm")))
sketch18.addConstraint(Sketcher.Constraint("DistanceY", -1, 1, 0, 3, Q("0.841432 mm")))
pocket16 = doc.addObject("PartDesign::Pocket", "Pocket015")
body.addObject(pocket16)
pocket16.Profile = sketch18
pocket16.Type = "UpToFirst"

# Sketch on XY plane
sketch19 = doc.addObject("Sketcher::SketchObject", "Sketch018")
body.addObject(sketch19)
sketch19.AttachmentSupport = (doc.XY_Plane, [""])
sketch19.MapMode = "FlatFace"
sketch19.AttachmentOffset = App.Placement(Vector(0, 0, 10), App.Rotation())
sketch19.addGeometry(Part.Circle(Vector(-125.9, 0.8, 0), Vector(0, 0, 1), 1.6), False)
sketch19.addConstraint(Sketcher.Constraint("Diameter", 0, Q("3.1 mm")))
sketch19.addConstraint(Sketcher.Constraint("DistanceX", 0, 3, -1, 1, Q("125.863171 mm")))
sketch19.addConstraint(Sketcher.Constraint("DistanceY", -1, 1, 0, 3, Q("0.841432 mm")))
pocket17 = doc.addObject("PartDesign::Pocket", "Pocket016")
body.addObject(pocket17)
pocket17.Profile = sketch19
pocket17.Type = "UpToFirst"

# Sketch on XY plane
sketch20 = doc.addObject("Sketcher::SketchObject", "Sketch019")
body.addObject(sketch20)
sketch20.AttachmentSupport = (doc.XY_Plane, [""])
sketch20.MapMode = "FlatFace"
sketch20.AttachmentOffset = App.Placement(Vector(0, 0, 10), App.Rotation())
add_polygon(sketch20, [(-142.4, -82.7), (-142.4, -93.7), (-134.4, -93.7), (-134.4, -82.7)])  # lines 0-3
sketch20.addGeometry(Part.Circle(Vector(-138.4, -88.2, 0), Vector(0, 0, 1), 2.5), False)  # 4
add_polygon(sketch20, [(-158.4, 66.3), (-158.4, -14.7), (-88.4, -14.7), (-88.4, 66.3)])  # lines 5-8
sketch20.addGeometry(Part.Circle(Vector(-150.9, 0.8, 0), Vector(0, 0, 1), 1.6), False)  # 9
add_polygon(sketch20, [(-128.6, -4.7), (-148.1, -4.7), (-148.1, 6.3), (-128.6, 6.3)])  # lines 10-13
sketch20.addGeometry(Part.Circle(Vector(-125.9, 0.8, 0), Vector(0, 0, 1), 1.6), False)  # 14
sketch20.addGeometry(Part.Circle(Vector(-98.4, 13.3, 0), Vector(0, 0, 1), 5), False)  # 15
sketch20.addGeometry(Part.Circle(Vector(-150.9, 25.8, 0), Vector(0, 0, 1), 1.6), False)  # 16
add_polygon(sketch20, [(-128.6, 20.3), (-148.1, 20.3), (-148.1, 31.3), (-128.6, 31.3)])  # lines 17-20
sketch20.addGeometry(Part.Circle(Vector(-125.9, 25.8, 0), Vector(0, 0, 1), 1.6), False)  # 21
sketch20.addGeometry(Part.Circle(Vector(-150.9, 50.8, 0), Vector(0, 0, 1), 1.6), False)  # 22
add_polygon(sketch20, [(-128.6, 45.3), (-148.1, 45.3), (-148.1, 56.3), (-128.6, 56.3)])  # lines 23-26
sketch20.addGeometry(Part.Circle(Vector(-125.9, 50.8, 0), Vector(0, 0, 1), 1.6), False)  # 27
sketch20.addGeometry(Part.Circle(Vector(-98.4, 38.3, 0), Vector(0, 0, 1), 5), False)  # 28
sketch20.addConstraint(Sketcher.Constraint("Vertical", 0))
sketch20.addConstraint(Sketcher.Constraint("Horizontal", 1))
sketch20.addConstraint(Sketcher.Constraint("Vertical", 2))
sketch20.addConstraint(Sketcher.Constraint("Horizontal", 3))
sketch20.addConstraint(Sketcher.Constraint("Vertical", 5))
sketch20.addConstraint(Sketcher.Constraint("Horizontal", 6))
sketch20.addConstraint(Sketcher.Constraint("Vertical", 7))
sketch20.addConstraint(Sketcher.Constraint("Horizontal", 8))
sketch20.addConstraint(Sketcher.Constraint("Horizontal", 10))
sketch20.addConstraint(Sketcher.Constraint("Vertical", 11))
sketch20.addConstraint(Sketcher.Constraint("Horizontal", 12))
sketch20.addConstraint(Sketcher.Constraint("Vertical", 13))
sketch20.addConstraint(Sketcher.Constraint("Horizontal", 17))
sketch20.addConstraint(Sketcher.Constraint("Vertical", 18))
sketch20.addConstraint(Sketcher.Constraint("Horizontal", 19))
sketch20.addConstraint(Sketcher.Constraint("Vertical", 20))
sketch20.addConstraint(Sketcher.Constraint("Horizontal", 23))
sketch20.addConstraint(Sketcher.Constraint("Vertical", 24))
sketch20.addConstraint(Sketcher.Constraint("Horizontal", 25))
sketch20.addConstraint(Sketcher.Constraint("Vertical", 26))
sketch20.addConstraint(Sketcher.Constraint("Equal", 9, 14))
sketch20.addConstraint(Sketcher.Constraint("Equal", 14, 16))
sketch20.addConstraint(Sketcher.Constraint("Equal", 16, 21))
sketch20.addConstraint(Sketcher.Constraint("Equal", 21, 22))
sketch20.addConstraint(Sketcher.Constraint("Equal", 22, 27))
sketch20.addConstraint(Sketcher.Constraint("Equal", 15, 28))
sketch20.addConstraint(Sketcher.Constraint("Horizontal", 9, 3, 14, 3))
sketch20.addConstraint(Sketcher.Constraint("Horizontal", 16, 3, 21, 3))
sketch20.addConstraint(Sketcher.Constraint("Horizontal", 22, 3, 27, 3))
sketch20.addConstraint(Sketcher.Constraint("Vertical", 9, 3, 16, 3))
sketch20.addConstraint(Sketcher.Constraint("Vertical", 14, 3, 21, 3))
sketch20.addConstraint(Sketcher.Constraint("Vertical", 16, 3, 22, 3))
sketch20.addConstraint(Sketcher.Constraint("Vertical", 21, 3, 27, 3))
sketch20.addConstraint(Sketcher.Constraint("Vertical", 15, 3, 28, 3))
sketch20.addConstraint(Sketcher.Constraint("Vertical", 11, 2, 17, 2))
sketch20.addConstraint(Sketcher.Constraint("Vertical", 13, 2, 19, 2))
sketch20.addConstraint(Sketcher.Constraint("Vertical", 18, 2, 23, 2))
sketch20.addConstraint(Sketcher.Constraint("Vertical", 20, 2, 25, 2))
sketch20.addConstraint(Sketcher.Constraint("Equal", 2, 11))
sketch20.addConstraint(Sketcher.Constraint("Equal", 13, 18))
sketch20.addConstraint(Sketcher.Constraint("Equal", 20, 24))
sketch20.addConstraint(Sketcher.Constraint("Diameter", 4, Q("5 mm")))
sketch20.addConstraint(Sketcher.Constraint("Diameter", 15, Q("10 mm")))
sketch20.addConstraint(Sketcher.Constraint("Diameter", 9, Q("3.1 mm")))
sketch20.addConstraint(Sketcher.Constraint("DistanceX", 1, 1, 1, 2, Q("8 mm")))
sketch20.addConstraint(Sketcher.Constraint("DistanceX", 6, 1, 6, 2, Q("70 mm")))
sketch20.addConstraint(Sketcher.Constraint("DistanceY", 0, 2, 0, 1, Q("11 mm")))
sketch20.addConstraint(Sketcher.Constraint("DistanceY", 5, 2, 5, 1, Q("81 mm")))
sketch20.addConstraint(Sketcher.Constraint("DistanceX", 10, 2, 10, 1, Q("19.5 mm")))
sketch20.addConstraint(Sketcher.Constraint("DistanceY", 4, 3, 9, 3, Q("89 mm")))
sketch20.addConstraint(Sketcher.Constraint("DistanceX", 9, 3, 14, 3, Q("25 mm")))
sketch20.addConstraint(Sketcher.Constraint("DistanceX", 4, 3, 15, 3, Q("40 mm")))
sketch20.addConstraint(Sketcher.Constraint("DistanceY", 9, 3, 16, 3, Q("25 mm")))
sketch20.addConstraint(Sketcher.Constraint("DistanceY", 16, 3, 22, 3, Q("25 mm")))
sketch20.addConstraint(Sketcher.Constraint("DistanceY", 15, 3, 28, 3, Q("25 mm")))
sketch20.addConstraint(Sketcher.Constraint("DistanceX", 0, 2, 4, 3, Q("4 mm")))
sketch20.addConstraint(Sketcher.Constraint("DistanceY", 0, 2, 15, 3, Q("107 mm")))
sketch20.addConstraint(Sketcher.Constraint("DistanceX", 15, 3, 6, 2, Q("10 mm")))
sketch20.addConstraint(Sketcher.Constraint("DistanceY", 6, 2, 15, 3, Q("28 mm")))
sketch20.addConstraint(Sketcher.Constraint("DistanceY", 5, 2, 10, 2, Q("10 mm")))
sketch20.addConstraint(Sketcher.Constraint("DistanceY", 11, 2, 17, 2, Q("14 mm")))
sketch20.addConstraint(Sketcher.Constraint("DistanceY", 18, 2, 23, 2, Q("14 mm")))
sketch20.addConstraint(Sketcher.Constraint("DistanceX", 9, 3, 4, 3, Q("12.5 mm")))
sketch20.addConstraint(Sketcher.Constraint("DistanceY", 14, 3, 15, 3, Q("12.5 mm")))
sketch20.addConstraint(Sketcher.Constraint("DistanceX", 9, 3, 10, 2, Q("2.75 mm")))
sketch20.addConstraint(Sketcher.Constraint("DistanceX", 4, 3, -1, 1, Q("138.363171 mm")))
sketch20.addConstraint(Sketcher.Constraint("DistanceY", 4, 3, -1, 1, Q("88.158568 mm")))
pocket18 = doc.addObject("PartDesign::Pocket", "Pocket017")
body.addObject(pocket18)
pocket18.Profile = sketch20
pocket18.Length = 5
doc.recompute()

fillet = doc.addObject("PartDesign::Fillet", "Fillet")
body.addObject(fillet)
fillet.Base = (pocket18, edges_at(pocket18, [
    (-128.613, 56.341, 2.5),
    (-128.613, 45.341, 2.5),
    (-88.363, 66.341, 7.5),
    (-88.363, -14.659, 7.5),
    (-134.363, -93.659, 7.5),
    (-142.363, -93.659, 7.5),
    (-142.363, -82.659, 7.5),
    (-134.363, -82.659, 7.5),
    (-148.113, 20.341, 2.5),
    (-148.113, 31.341, 2.5),
    (-128.613, 31.341, 2.5),
    (-128.613, 20.341, 2.5),
    (-128.613, 6.341, 2.5),
    (-128.613, -4.659, 2.5),
    (-148.113, -4.659, 2.5),
    (-148.113, 6.341, 2.5),
    (-148.113, 45.341, 2.5),
    (-148.113, 56.341, 2.5),
]))
fillet.Radius = 2

# Sketch on XY plane
sketch21 = doc.addObject("Sketcher::SketchObject", "Sketch020")
body.addObject(sketch21)
sketch21.AttachmentSupport = (doc.XY_Plane, [""])
sketch21.MapMode = "FlatFace"
sketch21.addGeometry(Part.Circle(Vector(-143.4, 86.8, 0), Vector(0, 0, 1), 1.6), False)
sketch21.addGeometry(Part.Circle(Vector(-115.9, 86.8, 0), Vector(0, 0, 1), 1.6), False)
sketch21.addGeometry(Part.Circle(Vector(-88.4, 86.8, 0), Vector(0, 0, 1), 1.6), False)
sketch21.addGeometry(Part.Circle(Vector(-88.4, -113.2, 0), Vector(0, 0, 1), 1.6), False)
sketch21.addGeometry(Part.Circle(Vector(-115.9, -113.2, 0), Vector(0, 0, 1), 1.6), False)
sketch21.addGeometry(Part.Circle(Vector(-143.4, -113.2, 0), Vector(0, 0, 1), 1.6), False)
sketch21.addConstraint(Sketcher.Constraint("Equal", 0, 1))
sketch21.addConstraint(Sketcher.Constraint("Equal", 1, 2))
sketch21.addConstraint(Sketcher.Constraint("Equal", 2, 3))
sketch21.addConstraint(Sketcher.Constraint("Equal", 3, 4))
sketch21.addConstraint(Sketcher.Constraint("Equal", 4, 5))
sketch21.addConstraint(Sketcher.Constraint("Horizontal", 0, 3, 1, 3))
sketch21.addConstraint(Sketcher.Constraint("Horizontal", 1, 3, 2, 3))
sketch21.addConstraint(Sketcher.Constraint("Horizontal", 3, 3, 4, 3))
sketch21.addConstraint(Sketcher.Constraint("Horizontal", 4, 3, 5, 3))
sketch21.addConstraint(Sketcher.Constraint("Vertical", 2, 3, 3, 3))
sketch21.addConstraint(Sketcher.Constraint("Vertical", 1, 3, 4, 3))
sketch21.addConstraint(Sketcher.Constraint("Vertical", 0, 3, 5, 3))
sketch21.addConstraint(Sketcher.Constraint("DistanceX", 0, 3, 2, 3, Q("55 mm")))
sketch21.addConstraint(Sketcher.Constraint("DistanceY", 3, 3, 2, 3, Q("200 mm")))
sketch21.addConstraint(Sketcher.Constraint("Diameter", 0, Q("3.2639 mm")))
sketch21.addConstraint(Sketcher.Constraint("DistanceX", 0, 3, 1, 3, Q("27.5 mm")))
sketch21.addConstraint(Sketcher.Constraint("DistanceX", 0, 3, -1, 1, Q("143.363171 mm")))
sketch21.addConstraint(Sketcher.Constraint("DistanceY", -1, 1, 0, 3, Q("86.841432 mm")))
doc.recompute()
hole2 = doc.addObject("PartDesign::Hole", "Hole001")
body.addObject(hole2)
hole2.Profile = sketch21
hole2.ThreadType = "None"
hole2.Diameter = 3.2639
hole2.DepthType = "Dimension"
hole2.Depth = 10
hole2.DrillPoint = "Flat"
hole2.HoleCutType = "Counterbore"
hole2.HoleCutDiameter = 6.74624
hole2.HoleCutDepth = 1.7272
hole2.Reversed = True

# Sketch on YZ plane
sketch22 = doc.addObject("Sketcher::SketchObject", "Sketch021")
body.addObject(sketch22)
sketch22.AttachmentSupport = (doc.YZ_Plane, [""])
sketch22.MapMode = "FlatFace"
sketch22.AttachmentOffset = App.Placement(Vector(0, 0, -158.363171), App.Rotation())
sketch22.addGeometry(Part.Circle(Vector(-63.2, 5, 0), Vector(0, 0, 1), 1.1), False)
sketch22.addConstraint(Sketcher.Constraint("DistanceY", -1, 1, 0, 3, Q("5 mm")))
sketch22.addConstraint(Sketcher.Constraint("Diameter", 0, Q("2.2606 mm")))
sketch22.addConstraint(Sketcher.Constraint("DistanceX", 0, 3, -1, 1, Q("63.158568 mm")))
doc.recompute()
hole3 = doc.addObject("PartDesign::Hole", "Hole002")
body.addObject(hole3)
hole3.Profile = sketch22
hole3.ThreadType = "None"
hole3.Diameter = 2.2606
hole3.DepthType = "Dimension"
hole3.Depth = 7.6
hole3.DrillPoint = "Angled"
hole3.DrillPointAngle = 118
hole3.Reversed = True

doc.recompute()
